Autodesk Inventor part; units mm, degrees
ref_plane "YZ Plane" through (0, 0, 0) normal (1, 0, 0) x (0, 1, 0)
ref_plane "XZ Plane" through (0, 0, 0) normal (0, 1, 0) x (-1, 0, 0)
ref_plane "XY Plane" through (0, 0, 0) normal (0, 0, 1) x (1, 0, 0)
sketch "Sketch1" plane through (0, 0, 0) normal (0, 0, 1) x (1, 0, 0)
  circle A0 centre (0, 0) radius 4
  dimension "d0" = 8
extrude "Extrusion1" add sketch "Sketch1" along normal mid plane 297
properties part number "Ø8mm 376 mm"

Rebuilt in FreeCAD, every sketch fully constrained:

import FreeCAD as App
import Part
import Sketcher

V = App.Vector
Q = App.Units.Quantity

doc = App.newDocument("Part")
params = doc.addObject("Spreadsheet::Sheet", "Params")
for row, (alias, value) in enumerate([
    ("sketch1_diameter", "8 mm"),
    ("pad1_length", "297 mm"),
], start=1):
    params.set(f"A{row}", alias)
    params.set(f"B{row}", "=" + value)
    params.setAlias(f"B{row}", alias)

body = doc.addObject("PartDesign::Body", "Body")

# Sketch on XY plane
sketch1 = body.newObject("Sketcher::SketchObject", "Sketch")
sketch1.AttachmentSupport = (doc.getObject("XY_Plane"), [""])
sketch1.MapMode = "FlatFace"
sketch1.addGeometry(Part.Circle(V(0, 0, 0), V(0, 0, 1), 4), False)
sketch1.addConstraint([
    Sketcher.Constraint("Coincident", 0, 3, -1, 1),
    Sketcher.Constraint("Diameter", 0, Q("8 mm")),
])
sketch1.setExpression("Constraints[1]", "Params.sketch1_diameter")
pad1 = body.newObject("PartDesign::Pad", "Pad")
pad1.Profile = sketch1
pad1.setExpression("Length", "Params.pad1_length")
pad1.Midplane = True

doc.recompute()
